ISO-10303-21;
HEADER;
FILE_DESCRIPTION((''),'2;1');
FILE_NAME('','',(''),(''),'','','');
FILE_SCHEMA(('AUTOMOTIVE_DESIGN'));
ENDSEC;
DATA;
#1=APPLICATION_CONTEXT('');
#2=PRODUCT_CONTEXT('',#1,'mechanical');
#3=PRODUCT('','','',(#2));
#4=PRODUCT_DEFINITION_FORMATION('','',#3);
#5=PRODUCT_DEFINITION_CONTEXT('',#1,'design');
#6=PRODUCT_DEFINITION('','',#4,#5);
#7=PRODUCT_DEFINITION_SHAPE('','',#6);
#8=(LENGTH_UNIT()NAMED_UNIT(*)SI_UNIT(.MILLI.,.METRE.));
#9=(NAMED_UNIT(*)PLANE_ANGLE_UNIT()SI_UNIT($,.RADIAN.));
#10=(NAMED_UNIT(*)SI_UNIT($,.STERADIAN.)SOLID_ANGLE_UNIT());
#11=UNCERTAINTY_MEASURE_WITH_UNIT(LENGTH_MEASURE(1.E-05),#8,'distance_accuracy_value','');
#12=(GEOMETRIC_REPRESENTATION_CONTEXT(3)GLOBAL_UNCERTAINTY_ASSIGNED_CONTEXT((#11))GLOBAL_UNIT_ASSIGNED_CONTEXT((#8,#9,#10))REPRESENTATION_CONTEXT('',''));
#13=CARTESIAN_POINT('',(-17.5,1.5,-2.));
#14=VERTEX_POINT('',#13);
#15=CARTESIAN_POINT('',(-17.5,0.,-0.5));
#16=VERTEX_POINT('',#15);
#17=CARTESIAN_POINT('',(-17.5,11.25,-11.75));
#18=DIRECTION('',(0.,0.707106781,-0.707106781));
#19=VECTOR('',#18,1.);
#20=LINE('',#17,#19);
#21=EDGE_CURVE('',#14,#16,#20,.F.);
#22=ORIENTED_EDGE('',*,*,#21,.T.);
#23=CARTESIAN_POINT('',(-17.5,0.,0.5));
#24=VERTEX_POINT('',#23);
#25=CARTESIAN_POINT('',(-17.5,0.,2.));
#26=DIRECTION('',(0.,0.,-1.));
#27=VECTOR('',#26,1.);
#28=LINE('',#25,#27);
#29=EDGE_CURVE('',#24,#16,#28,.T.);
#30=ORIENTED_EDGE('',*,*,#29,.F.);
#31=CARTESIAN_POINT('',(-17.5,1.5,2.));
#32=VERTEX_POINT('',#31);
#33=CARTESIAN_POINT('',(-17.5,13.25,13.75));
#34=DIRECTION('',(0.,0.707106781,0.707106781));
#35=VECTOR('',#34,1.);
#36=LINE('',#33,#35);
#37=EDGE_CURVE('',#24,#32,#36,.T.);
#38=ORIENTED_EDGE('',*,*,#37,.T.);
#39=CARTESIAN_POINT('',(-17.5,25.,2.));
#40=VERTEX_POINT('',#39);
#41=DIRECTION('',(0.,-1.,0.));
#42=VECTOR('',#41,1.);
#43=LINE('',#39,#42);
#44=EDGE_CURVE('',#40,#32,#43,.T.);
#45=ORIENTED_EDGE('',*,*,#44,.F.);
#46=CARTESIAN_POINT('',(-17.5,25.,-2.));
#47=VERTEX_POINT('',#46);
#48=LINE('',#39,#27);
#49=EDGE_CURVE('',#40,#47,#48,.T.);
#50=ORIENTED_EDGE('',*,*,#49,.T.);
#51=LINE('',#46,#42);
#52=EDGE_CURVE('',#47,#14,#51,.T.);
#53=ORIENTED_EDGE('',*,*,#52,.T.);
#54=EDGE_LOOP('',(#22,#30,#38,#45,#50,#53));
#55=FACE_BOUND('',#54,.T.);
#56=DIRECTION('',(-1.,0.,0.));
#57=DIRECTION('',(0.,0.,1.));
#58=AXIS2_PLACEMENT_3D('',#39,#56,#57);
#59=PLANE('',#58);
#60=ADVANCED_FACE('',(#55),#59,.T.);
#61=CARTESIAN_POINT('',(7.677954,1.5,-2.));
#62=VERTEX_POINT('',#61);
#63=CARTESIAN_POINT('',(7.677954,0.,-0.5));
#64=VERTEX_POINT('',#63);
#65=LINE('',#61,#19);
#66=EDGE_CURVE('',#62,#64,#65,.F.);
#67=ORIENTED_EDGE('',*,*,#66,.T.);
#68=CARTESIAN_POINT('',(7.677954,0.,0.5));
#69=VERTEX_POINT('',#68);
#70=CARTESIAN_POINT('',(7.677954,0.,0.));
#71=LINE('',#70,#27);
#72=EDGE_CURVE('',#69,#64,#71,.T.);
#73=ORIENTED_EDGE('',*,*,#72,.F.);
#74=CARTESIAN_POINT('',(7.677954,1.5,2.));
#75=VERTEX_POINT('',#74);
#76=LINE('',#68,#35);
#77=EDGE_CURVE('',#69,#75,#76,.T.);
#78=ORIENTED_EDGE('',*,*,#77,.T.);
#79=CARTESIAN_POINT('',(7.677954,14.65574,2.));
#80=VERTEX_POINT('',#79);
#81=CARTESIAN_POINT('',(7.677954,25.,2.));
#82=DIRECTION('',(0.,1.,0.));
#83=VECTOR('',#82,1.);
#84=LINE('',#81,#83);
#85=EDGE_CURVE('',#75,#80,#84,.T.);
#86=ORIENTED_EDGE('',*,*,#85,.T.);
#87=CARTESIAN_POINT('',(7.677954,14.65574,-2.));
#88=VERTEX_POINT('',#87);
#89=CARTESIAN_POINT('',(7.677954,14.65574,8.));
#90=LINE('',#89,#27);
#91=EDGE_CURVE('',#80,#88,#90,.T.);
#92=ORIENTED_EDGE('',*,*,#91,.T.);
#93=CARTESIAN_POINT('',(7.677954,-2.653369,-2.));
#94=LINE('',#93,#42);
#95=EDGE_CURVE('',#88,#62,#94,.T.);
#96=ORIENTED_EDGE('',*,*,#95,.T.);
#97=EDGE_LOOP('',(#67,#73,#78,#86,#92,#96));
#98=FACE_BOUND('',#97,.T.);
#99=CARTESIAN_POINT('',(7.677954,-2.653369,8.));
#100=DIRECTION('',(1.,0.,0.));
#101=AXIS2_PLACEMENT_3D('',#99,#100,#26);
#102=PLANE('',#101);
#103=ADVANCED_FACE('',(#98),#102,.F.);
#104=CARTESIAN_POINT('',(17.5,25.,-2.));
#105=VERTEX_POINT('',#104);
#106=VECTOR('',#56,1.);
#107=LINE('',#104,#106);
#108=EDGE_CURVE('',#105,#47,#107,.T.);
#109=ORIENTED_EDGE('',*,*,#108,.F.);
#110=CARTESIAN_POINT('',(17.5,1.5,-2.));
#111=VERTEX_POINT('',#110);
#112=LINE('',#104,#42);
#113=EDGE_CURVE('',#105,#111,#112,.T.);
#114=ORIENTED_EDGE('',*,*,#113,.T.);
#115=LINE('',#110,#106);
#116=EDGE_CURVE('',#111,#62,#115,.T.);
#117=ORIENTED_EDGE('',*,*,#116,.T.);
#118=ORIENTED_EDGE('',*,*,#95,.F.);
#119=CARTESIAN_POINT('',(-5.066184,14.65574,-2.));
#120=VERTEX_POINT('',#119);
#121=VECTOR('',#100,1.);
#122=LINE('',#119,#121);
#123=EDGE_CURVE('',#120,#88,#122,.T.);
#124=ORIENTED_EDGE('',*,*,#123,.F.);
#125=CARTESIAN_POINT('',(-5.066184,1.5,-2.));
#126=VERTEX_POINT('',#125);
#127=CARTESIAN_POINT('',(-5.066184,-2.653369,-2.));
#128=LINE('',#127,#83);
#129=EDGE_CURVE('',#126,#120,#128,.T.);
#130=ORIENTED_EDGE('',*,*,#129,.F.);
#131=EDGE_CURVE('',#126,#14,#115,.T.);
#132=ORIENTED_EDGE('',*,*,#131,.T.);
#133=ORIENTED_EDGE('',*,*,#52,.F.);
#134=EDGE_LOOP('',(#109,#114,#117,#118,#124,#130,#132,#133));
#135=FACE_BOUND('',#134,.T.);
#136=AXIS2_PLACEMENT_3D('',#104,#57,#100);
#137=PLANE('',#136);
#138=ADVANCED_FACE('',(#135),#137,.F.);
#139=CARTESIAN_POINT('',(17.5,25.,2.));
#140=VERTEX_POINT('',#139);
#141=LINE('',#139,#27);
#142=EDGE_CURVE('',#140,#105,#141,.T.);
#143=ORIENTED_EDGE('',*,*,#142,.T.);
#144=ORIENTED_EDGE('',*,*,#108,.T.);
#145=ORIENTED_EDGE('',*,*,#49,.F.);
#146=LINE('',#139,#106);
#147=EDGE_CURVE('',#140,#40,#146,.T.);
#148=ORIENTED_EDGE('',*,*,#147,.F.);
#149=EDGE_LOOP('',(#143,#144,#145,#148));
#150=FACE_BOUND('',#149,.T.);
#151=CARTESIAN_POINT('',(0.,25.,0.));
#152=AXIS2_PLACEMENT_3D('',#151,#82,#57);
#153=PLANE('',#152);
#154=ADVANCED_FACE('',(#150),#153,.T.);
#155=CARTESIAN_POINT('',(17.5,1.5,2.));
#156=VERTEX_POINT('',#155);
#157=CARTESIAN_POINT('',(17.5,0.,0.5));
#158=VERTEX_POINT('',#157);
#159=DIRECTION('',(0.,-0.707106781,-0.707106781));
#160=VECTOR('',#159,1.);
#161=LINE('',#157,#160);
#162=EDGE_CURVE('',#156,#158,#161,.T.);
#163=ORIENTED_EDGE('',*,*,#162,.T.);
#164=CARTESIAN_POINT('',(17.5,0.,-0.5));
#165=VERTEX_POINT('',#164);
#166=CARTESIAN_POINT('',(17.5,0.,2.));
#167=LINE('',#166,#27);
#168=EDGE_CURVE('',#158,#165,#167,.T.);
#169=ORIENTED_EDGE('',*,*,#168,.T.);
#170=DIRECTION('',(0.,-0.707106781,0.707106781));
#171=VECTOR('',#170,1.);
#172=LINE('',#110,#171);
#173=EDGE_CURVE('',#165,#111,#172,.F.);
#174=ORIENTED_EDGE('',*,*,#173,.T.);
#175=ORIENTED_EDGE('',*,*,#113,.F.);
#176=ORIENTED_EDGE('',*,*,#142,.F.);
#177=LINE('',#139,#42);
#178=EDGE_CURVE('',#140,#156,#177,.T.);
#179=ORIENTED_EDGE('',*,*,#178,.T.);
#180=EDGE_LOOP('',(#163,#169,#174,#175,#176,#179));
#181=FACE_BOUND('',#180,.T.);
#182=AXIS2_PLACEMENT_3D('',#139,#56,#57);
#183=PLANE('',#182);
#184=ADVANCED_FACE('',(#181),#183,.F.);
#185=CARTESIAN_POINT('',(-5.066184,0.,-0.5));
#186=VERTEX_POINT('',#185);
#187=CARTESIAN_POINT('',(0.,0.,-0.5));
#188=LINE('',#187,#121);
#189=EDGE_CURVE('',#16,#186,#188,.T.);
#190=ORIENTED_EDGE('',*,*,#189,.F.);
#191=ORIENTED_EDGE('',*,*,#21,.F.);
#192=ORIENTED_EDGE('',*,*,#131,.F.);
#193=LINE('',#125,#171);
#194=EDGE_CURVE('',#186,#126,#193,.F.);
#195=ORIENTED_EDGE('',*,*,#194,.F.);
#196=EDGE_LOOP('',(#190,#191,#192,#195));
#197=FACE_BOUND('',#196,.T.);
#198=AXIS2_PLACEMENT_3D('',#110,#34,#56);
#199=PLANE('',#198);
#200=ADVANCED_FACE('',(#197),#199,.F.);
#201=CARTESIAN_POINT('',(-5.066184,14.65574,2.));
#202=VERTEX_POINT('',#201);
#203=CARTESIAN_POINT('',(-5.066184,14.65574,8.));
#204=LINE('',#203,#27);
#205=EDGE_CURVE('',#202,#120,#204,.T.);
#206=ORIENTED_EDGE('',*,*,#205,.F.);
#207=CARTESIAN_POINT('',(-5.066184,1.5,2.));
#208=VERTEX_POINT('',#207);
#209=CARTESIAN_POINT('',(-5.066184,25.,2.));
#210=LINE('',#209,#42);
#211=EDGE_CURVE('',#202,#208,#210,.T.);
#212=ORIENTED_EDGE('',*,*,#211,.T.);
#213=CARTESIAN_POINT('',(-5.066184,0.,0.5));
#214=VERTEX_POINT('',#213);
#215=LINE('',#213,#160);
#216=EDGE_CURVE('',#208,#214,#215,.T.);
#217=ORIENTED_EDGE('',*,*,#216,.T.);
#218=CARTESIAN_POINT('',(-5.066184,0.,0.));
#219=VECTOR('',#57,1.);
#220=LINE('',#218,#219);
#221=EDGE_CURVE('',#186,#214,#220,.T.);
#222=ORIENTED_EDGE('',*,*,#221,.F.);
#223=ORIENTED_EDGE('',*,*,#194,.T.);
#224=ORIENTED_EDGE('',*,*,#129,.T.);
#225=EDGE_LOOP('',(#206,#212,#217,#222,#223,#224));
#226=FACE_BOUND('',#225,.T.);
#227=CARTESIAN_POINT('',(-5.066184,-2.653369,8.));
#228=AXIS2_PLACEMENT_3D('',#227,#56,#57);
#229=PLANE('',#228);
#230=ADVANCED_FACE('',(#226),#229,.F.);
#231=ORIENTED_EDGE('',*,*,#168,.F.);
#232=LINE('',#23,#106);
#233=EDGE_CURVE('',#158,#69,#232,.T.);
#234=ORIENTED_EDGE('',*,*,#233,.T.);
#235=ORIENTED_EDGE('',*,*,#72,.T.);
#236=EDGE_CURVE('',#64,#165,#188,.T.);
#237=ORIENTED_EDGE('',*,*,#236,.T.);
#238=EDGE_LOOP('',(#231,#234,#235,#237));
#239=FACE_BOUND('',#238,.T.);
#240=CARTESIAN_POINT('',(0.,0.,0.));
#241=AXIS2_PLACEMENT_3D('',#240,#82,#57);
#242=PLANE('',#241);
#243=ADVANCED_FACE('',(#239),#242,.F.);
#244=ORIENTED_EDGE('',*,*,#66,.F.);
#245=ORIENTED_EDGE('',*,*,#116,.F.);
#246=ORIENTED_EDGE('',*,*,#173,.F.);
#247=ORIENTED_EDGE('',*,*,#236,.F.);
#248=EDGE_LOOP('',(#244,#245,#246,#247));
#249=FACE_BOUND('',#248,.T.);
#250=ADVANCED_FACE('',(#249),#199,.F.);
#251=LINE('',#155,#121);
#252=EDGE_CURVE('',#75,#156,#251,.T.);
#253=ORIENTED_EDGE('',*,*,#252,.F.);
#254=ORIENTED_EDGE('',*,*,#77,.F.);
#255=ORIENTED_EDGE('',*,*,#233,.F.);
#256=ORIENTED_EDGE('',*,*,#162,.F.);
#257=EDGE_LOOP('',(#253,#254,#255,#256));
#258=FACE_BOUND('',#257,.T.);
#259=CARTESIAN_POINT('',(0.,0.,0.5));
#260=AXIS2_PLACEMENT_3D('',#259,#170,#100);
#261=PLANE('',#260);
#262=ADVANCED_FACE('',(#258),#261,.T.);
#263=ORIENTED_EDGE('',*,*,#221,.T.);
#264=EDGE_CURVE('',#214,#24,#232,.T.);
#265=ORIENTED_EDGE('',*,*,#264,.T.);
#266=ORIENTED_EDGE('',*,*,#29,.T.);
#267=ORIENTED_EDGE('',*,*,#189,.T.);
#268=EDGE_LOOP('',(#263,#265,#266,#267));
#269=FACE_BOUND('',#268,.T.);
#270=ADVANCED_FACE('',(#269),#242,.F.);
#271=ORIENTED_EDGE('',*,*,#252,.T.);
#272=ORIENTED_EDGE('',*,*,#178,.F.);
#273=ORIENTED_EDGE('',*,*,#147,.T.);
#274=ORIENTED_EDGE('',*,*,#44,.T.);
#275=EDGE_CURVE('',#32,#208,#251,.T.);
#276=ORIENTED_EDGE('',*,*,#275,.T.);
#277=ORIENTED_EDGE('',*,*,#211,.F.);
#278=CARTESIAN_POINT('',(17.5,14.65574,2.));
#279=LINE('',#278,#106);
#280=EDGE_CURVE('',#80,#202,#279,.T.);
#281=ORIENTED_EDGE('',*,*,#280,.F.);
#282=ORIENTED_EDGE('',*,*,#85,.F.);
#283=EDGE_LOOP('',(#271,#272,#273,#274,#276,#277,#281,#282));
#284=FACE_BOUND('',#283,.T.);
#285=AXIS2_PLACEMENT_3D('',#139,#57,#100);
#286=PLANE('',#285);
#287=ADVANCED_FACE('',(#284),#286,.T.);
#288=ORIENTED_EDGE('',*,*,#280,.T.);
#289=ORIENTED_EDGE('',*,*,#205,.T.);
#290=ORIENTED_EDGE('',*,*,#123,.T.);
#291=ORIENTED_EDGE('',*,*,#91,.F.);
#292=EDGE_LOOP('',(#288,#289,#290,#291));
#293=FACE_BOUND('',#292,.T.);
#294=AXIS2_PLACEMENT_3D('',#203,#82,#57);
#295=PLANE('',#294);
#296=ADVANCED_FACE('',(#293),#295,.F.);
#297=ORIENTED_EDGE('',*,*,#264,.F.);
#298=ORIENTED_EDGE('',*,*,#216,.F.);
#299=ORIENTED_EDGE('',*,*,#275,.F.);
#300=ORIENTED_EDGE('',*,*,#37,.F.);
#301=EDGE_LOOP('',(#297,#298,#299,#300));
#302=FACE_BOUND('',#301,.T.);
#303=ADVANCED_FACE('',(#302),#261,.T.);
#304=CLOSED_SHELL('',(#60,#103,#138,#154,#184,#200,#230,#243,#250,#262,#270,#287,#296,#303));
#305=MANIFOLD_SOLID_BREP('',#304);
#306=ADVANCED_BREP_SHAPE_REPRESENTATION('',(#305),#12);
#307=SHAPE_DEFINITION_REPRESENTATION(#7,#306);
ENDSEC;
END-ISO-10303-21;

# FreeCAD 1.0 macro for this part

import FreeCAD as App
import Part
import Sketcher
from FreeCAD import Vector


def edges_at(feature, points):
    """Names of the edges that pass closest to the given points."""
    edges = feature.Shape.Edges
    near = lambda p: min(range(len(edges)), key=lambda i: edges[i].distToShape(Part.Vertex(*p))[0])
    return sorted({f"Edge{near(p) + 1}" for p in points})

doc = App.newDocument("Part")
body = doc.addObject("PartDesign::Body", "Body")

# Sketch on XZ plane
sketch1 = body.newObject("Sketcher::SketchObject", "Sketch")
sketch1.AttachmentSupport = (doc.getObject("XZ_Plane"), [""])
sketch1.MapMode = "FlatFace"
sketch1.addGeometry([
    Part.LineSegment(Vector(-17.5, -2, 0), Vector(-17.5, 2, 0)),
    Part.LineSegment(Vector(-17.5, 2, 0), Vector(17.5, 2, 0)),
    Part.LineSegment(Vector(17.5, 2, 0), Vector(17.5, -2, 0)),
    Part.LineSegment(Vector(17.5, -2, 0), Vector(-17.5, -2, 0)),
], False)
sketch1.addConstraint([
    Sketcher.Constraint("Coincident", 0, 2, 1, 1),
    Sketcher.Constraint("Coincident", 1, 2, 2, 1),
    Sketcher.Constraint("Coincident", 2, 2, 3, 1),
    Sketcher.Constraint("Coincident", 3, 2, 0, 1),
    Sketcher.Constraint("Vertical", 0),
    Sketcher.Constraint("Horizontal", 1),
    Sketcher.Constraint("Vertical", 2),
    Sketcher.Constraint("Horizontal", 3),
    Sketcher.Constraint("Symmetric", 0, 2, 2, 2, -1, 1),
    Sketcher.Constraint("DistanceX", 1, 1, 1, 2, 35.0),
    Sketcher.Constraint("DistanceY", 0, 1, 0, 2, 4.0),
])
pad1 = body.newObject("PartDesign::Pad", "Pad")
pad1.Profile = sketch1
pad1.Length = 25
pad1.Reversed = True
doc.recompute()

chamfer = body.newObject("PartDesign::Chamfer", "Chamfer")
chamfer.Base = (pad1, edges_at(pad1, [(0, 0, 2), (0, 0, -2)]))
chamfer.Size = 1.5

# Sketch on XY plane
sketch2 = body.newObject("Sketcher::SketchObject", "Sketch001")
sketch2.AttachmentSupport = (doc.getObject("XY_Plane"), [""])
sketch2.MapMode = "FlatFace"
sketch2.AttachmentOffset = App.Placement(Vector(0, 0, -2), App.Rotation())
sketch2.addGeometry([
    Part.LineSegment(Vector(8, 15, 0), Vector(8, -3, 0)),
    Part.LineSegment(Vector(8, -3, 0), Vector(-5, -3, 0)),
    Part.LineSegment(Vector(-5, -3, 0), Vector(-5, 15, 0)),
    Part.LineSegment(Vector(-5, 15, 0), Vector(8, 15, 0)),
], False)
sketch2.addConstraint([
    Sketcher.Constraint("Coincident", 0, 2, 1, 1),
    Sketcher.Constraint("Coincident", 1, 2, 2, 1),
    Sketcher.Constraint("Coincident", 2, 2, 3, 1),
    Sketcher.Constraint("Coincident", 3, 2, 0, 1),
    Sketcher.Constraint("Vertical", 0),
    Sketcher.Constraint("Horizontal", 1),
    Sketcher.Constraint("Vertical", 2),
    Sketcher.Constraint("Horizontal", 3),
    Sketcher.Constraint("DistanceX", 1, 2, 1, 1, 12.744139),
    Sketcher.Constraint("DistanceY", 0, 2, 0, 1, 17.30911),
    Sketcher.Constraint("DistanceY", 0, 2, -1, 1, 2.653369),
    Sketcher.Constraint("DistanceX", -1, 1, 0, 2, 7.677954),
])
pocket1 = body.newObject("PartDesign::Pocket", "Pocket")
pocket1.Profile = sketch2
pocket1.Length = 10
pocket1.Reversed = True

doc.recompute()
